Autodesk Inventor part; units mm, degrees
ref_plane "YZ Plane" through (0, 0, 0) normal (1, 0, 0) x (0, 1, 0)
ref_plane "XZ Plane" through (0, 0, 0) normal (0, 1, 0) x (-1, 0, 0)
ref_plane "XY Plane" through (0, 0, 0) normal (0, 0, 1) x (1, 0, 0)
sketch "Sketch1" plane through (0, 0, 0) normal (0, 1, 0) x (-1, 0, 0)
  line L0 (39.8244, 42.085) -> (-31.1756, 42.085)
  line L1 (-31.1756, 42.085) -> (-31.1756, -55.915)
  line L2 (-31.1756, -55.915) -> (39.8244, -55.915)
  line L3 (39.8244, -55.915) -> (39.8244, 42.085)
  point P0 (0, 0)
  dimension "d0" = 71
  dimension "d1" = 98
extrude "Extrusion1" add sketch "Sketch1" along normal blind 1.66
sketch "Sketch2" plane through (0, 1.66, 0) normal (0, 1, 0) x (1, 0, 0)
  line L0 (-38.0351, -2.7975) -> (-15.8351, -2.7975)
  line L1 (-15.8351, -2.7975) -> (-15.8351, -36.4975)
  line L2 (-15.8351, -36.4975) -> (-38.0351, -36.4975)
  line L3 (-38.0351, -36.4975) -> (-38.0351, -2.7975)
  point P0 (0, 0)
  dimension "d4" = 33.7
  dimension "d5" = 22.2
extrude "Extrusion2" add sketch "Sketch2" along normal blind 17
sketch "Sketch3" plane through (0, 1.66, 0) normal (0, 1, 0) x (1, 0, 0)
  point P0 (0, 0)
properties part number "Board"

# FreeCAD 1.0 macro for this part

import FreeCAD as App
import Part
import Sketcher

doc = App.newDocument("Part")
body = doc.addObject("PartDesign::Body", "Body")

# Sketch on XZ plane
sketch1 = doc.addObject("Sketcher::SketchObject", "Sketch")
body.addObject(sketch1)
sketch1.AttachmentSupport = (doc.XZ_Plane, [""])
sketch1.MapMode = "FlatFace"
sketch1.addGeometry([
    Part.LineSegment(App.Vector(-40, -56, 0), App.Vector(-40, 42, 0)),
    Part.LineSegment(App.Vector(-40, 42, 0), App.Vector(31, 42, 0)),
    Part.LineSegment(App.Vector(31, 42, 0), App.Vector(31, -56, 0)),
    Part.LineSegment(App.Vector(31, -56, 0), App.Vector(-40, -56, 0)),
], False)
sketch1.addConstraint([
    Sketcher.Constraint("Coincident", 0, 2, 1, 1),
    Sketcher.Constraint("Coincident", 1, 2, 2, 1),
    Sketcher.Constraint("Coincident", 2, 2, 3, 1),
    Sketcher.Constraint("Coincident", 3, 2, 0, 1),
    Sketcher.Constraint("Vertical", 0),
    Sketcher.Constraint("Horizontal", 1),
    Sketcher.Constraint("Vertical", 2),
    Sketcher.Constraint("Horizontal", 3),
    Sketcher.Constraint("DistanceX", 1, 1, 1, 2, 71.0),
    Sketcher.Constraint("DistanceY", 0, 1, 0, 2, 98.0),
    Sketcher.Constraint("DistanceY", -1, 1, 0, 2, 42.085),
    Sketcher.Constraint("DistanceX", 0, 2, -1, 1, 39.8244),
])
pad1 = doc.addObject("PartDesign::Pad", "Pad")
body.addObject(pad1)
pad1.Profile = sketch1
pad1.Length = 1.66
pad1.Reversed = True

# Sketch on XZ plane
sketch2 = doc.addObject("Sketcher::SketchObject", "Sketch001")
body.addObject(sketch2)
sketch2.AttachmentSupport = (doc.XZ_Plane, [""])
sketch2.MapMode = "FlatFace"
sketch2.AttachmentOffset = App.Placement(App.Vector(0, 0, -1.66), App.Rotation())
sketch2.addGeometry([
    Part.LineSegment(App.Vector(-16, 3, 0), App.Vector(-38, 3, 0)),
    Part.LineSegment(App.Vector(-38, 3, 0), App.Vector(-38, 36, 0)),
    Part.LineSegment(App.Vector(-38, 36, 0), App.Vector(-16, 36, 0)),
    Part.LineSegment(App.Vector(-16, 36, 0), App.Vector(-16, 3, 0)),
], False)
sketch2.addConstraint([
    Sketcher.Constraint("Coincident", 0, 2, 1, 1),
    Sketcher.Constraint("Coincident", 1, 2, 2, 1),
    Sketcher.Constraint("Coincident", 2, 2, 3, 1),
    Sketcher.Constraint("Coincident", 3, 2, 0, 1),
    Sketcher.Constraint("Horizontal", 0),
    Sketcher.Constraint("Vertical", 1),
    Sketcher.Constraint("Horizontal", 2),
    Sketcher.Constraint("Vertical", 3),
    Sketcher.Constraint("DistanceX", 0, 2, 0, 1, 22.2),
    Sketcher.Constraint("DistanceY", 1, 1, 1, 2, 33.7),
    Sketcher.Constraint("DistanceX", 0, 2, -1, 1, 38.035),
    Sketcher.Constraint("DistanceY", -1, 1, 0, 2, 2.7975),
])
pad2 = doc.addObject("PartDesign::Pad", "Pad001")
body.addObject(pad2)
pad2.Profile = sketch2
pad2.Length = 17
pad2.Reversed = True

doc.recompute()
